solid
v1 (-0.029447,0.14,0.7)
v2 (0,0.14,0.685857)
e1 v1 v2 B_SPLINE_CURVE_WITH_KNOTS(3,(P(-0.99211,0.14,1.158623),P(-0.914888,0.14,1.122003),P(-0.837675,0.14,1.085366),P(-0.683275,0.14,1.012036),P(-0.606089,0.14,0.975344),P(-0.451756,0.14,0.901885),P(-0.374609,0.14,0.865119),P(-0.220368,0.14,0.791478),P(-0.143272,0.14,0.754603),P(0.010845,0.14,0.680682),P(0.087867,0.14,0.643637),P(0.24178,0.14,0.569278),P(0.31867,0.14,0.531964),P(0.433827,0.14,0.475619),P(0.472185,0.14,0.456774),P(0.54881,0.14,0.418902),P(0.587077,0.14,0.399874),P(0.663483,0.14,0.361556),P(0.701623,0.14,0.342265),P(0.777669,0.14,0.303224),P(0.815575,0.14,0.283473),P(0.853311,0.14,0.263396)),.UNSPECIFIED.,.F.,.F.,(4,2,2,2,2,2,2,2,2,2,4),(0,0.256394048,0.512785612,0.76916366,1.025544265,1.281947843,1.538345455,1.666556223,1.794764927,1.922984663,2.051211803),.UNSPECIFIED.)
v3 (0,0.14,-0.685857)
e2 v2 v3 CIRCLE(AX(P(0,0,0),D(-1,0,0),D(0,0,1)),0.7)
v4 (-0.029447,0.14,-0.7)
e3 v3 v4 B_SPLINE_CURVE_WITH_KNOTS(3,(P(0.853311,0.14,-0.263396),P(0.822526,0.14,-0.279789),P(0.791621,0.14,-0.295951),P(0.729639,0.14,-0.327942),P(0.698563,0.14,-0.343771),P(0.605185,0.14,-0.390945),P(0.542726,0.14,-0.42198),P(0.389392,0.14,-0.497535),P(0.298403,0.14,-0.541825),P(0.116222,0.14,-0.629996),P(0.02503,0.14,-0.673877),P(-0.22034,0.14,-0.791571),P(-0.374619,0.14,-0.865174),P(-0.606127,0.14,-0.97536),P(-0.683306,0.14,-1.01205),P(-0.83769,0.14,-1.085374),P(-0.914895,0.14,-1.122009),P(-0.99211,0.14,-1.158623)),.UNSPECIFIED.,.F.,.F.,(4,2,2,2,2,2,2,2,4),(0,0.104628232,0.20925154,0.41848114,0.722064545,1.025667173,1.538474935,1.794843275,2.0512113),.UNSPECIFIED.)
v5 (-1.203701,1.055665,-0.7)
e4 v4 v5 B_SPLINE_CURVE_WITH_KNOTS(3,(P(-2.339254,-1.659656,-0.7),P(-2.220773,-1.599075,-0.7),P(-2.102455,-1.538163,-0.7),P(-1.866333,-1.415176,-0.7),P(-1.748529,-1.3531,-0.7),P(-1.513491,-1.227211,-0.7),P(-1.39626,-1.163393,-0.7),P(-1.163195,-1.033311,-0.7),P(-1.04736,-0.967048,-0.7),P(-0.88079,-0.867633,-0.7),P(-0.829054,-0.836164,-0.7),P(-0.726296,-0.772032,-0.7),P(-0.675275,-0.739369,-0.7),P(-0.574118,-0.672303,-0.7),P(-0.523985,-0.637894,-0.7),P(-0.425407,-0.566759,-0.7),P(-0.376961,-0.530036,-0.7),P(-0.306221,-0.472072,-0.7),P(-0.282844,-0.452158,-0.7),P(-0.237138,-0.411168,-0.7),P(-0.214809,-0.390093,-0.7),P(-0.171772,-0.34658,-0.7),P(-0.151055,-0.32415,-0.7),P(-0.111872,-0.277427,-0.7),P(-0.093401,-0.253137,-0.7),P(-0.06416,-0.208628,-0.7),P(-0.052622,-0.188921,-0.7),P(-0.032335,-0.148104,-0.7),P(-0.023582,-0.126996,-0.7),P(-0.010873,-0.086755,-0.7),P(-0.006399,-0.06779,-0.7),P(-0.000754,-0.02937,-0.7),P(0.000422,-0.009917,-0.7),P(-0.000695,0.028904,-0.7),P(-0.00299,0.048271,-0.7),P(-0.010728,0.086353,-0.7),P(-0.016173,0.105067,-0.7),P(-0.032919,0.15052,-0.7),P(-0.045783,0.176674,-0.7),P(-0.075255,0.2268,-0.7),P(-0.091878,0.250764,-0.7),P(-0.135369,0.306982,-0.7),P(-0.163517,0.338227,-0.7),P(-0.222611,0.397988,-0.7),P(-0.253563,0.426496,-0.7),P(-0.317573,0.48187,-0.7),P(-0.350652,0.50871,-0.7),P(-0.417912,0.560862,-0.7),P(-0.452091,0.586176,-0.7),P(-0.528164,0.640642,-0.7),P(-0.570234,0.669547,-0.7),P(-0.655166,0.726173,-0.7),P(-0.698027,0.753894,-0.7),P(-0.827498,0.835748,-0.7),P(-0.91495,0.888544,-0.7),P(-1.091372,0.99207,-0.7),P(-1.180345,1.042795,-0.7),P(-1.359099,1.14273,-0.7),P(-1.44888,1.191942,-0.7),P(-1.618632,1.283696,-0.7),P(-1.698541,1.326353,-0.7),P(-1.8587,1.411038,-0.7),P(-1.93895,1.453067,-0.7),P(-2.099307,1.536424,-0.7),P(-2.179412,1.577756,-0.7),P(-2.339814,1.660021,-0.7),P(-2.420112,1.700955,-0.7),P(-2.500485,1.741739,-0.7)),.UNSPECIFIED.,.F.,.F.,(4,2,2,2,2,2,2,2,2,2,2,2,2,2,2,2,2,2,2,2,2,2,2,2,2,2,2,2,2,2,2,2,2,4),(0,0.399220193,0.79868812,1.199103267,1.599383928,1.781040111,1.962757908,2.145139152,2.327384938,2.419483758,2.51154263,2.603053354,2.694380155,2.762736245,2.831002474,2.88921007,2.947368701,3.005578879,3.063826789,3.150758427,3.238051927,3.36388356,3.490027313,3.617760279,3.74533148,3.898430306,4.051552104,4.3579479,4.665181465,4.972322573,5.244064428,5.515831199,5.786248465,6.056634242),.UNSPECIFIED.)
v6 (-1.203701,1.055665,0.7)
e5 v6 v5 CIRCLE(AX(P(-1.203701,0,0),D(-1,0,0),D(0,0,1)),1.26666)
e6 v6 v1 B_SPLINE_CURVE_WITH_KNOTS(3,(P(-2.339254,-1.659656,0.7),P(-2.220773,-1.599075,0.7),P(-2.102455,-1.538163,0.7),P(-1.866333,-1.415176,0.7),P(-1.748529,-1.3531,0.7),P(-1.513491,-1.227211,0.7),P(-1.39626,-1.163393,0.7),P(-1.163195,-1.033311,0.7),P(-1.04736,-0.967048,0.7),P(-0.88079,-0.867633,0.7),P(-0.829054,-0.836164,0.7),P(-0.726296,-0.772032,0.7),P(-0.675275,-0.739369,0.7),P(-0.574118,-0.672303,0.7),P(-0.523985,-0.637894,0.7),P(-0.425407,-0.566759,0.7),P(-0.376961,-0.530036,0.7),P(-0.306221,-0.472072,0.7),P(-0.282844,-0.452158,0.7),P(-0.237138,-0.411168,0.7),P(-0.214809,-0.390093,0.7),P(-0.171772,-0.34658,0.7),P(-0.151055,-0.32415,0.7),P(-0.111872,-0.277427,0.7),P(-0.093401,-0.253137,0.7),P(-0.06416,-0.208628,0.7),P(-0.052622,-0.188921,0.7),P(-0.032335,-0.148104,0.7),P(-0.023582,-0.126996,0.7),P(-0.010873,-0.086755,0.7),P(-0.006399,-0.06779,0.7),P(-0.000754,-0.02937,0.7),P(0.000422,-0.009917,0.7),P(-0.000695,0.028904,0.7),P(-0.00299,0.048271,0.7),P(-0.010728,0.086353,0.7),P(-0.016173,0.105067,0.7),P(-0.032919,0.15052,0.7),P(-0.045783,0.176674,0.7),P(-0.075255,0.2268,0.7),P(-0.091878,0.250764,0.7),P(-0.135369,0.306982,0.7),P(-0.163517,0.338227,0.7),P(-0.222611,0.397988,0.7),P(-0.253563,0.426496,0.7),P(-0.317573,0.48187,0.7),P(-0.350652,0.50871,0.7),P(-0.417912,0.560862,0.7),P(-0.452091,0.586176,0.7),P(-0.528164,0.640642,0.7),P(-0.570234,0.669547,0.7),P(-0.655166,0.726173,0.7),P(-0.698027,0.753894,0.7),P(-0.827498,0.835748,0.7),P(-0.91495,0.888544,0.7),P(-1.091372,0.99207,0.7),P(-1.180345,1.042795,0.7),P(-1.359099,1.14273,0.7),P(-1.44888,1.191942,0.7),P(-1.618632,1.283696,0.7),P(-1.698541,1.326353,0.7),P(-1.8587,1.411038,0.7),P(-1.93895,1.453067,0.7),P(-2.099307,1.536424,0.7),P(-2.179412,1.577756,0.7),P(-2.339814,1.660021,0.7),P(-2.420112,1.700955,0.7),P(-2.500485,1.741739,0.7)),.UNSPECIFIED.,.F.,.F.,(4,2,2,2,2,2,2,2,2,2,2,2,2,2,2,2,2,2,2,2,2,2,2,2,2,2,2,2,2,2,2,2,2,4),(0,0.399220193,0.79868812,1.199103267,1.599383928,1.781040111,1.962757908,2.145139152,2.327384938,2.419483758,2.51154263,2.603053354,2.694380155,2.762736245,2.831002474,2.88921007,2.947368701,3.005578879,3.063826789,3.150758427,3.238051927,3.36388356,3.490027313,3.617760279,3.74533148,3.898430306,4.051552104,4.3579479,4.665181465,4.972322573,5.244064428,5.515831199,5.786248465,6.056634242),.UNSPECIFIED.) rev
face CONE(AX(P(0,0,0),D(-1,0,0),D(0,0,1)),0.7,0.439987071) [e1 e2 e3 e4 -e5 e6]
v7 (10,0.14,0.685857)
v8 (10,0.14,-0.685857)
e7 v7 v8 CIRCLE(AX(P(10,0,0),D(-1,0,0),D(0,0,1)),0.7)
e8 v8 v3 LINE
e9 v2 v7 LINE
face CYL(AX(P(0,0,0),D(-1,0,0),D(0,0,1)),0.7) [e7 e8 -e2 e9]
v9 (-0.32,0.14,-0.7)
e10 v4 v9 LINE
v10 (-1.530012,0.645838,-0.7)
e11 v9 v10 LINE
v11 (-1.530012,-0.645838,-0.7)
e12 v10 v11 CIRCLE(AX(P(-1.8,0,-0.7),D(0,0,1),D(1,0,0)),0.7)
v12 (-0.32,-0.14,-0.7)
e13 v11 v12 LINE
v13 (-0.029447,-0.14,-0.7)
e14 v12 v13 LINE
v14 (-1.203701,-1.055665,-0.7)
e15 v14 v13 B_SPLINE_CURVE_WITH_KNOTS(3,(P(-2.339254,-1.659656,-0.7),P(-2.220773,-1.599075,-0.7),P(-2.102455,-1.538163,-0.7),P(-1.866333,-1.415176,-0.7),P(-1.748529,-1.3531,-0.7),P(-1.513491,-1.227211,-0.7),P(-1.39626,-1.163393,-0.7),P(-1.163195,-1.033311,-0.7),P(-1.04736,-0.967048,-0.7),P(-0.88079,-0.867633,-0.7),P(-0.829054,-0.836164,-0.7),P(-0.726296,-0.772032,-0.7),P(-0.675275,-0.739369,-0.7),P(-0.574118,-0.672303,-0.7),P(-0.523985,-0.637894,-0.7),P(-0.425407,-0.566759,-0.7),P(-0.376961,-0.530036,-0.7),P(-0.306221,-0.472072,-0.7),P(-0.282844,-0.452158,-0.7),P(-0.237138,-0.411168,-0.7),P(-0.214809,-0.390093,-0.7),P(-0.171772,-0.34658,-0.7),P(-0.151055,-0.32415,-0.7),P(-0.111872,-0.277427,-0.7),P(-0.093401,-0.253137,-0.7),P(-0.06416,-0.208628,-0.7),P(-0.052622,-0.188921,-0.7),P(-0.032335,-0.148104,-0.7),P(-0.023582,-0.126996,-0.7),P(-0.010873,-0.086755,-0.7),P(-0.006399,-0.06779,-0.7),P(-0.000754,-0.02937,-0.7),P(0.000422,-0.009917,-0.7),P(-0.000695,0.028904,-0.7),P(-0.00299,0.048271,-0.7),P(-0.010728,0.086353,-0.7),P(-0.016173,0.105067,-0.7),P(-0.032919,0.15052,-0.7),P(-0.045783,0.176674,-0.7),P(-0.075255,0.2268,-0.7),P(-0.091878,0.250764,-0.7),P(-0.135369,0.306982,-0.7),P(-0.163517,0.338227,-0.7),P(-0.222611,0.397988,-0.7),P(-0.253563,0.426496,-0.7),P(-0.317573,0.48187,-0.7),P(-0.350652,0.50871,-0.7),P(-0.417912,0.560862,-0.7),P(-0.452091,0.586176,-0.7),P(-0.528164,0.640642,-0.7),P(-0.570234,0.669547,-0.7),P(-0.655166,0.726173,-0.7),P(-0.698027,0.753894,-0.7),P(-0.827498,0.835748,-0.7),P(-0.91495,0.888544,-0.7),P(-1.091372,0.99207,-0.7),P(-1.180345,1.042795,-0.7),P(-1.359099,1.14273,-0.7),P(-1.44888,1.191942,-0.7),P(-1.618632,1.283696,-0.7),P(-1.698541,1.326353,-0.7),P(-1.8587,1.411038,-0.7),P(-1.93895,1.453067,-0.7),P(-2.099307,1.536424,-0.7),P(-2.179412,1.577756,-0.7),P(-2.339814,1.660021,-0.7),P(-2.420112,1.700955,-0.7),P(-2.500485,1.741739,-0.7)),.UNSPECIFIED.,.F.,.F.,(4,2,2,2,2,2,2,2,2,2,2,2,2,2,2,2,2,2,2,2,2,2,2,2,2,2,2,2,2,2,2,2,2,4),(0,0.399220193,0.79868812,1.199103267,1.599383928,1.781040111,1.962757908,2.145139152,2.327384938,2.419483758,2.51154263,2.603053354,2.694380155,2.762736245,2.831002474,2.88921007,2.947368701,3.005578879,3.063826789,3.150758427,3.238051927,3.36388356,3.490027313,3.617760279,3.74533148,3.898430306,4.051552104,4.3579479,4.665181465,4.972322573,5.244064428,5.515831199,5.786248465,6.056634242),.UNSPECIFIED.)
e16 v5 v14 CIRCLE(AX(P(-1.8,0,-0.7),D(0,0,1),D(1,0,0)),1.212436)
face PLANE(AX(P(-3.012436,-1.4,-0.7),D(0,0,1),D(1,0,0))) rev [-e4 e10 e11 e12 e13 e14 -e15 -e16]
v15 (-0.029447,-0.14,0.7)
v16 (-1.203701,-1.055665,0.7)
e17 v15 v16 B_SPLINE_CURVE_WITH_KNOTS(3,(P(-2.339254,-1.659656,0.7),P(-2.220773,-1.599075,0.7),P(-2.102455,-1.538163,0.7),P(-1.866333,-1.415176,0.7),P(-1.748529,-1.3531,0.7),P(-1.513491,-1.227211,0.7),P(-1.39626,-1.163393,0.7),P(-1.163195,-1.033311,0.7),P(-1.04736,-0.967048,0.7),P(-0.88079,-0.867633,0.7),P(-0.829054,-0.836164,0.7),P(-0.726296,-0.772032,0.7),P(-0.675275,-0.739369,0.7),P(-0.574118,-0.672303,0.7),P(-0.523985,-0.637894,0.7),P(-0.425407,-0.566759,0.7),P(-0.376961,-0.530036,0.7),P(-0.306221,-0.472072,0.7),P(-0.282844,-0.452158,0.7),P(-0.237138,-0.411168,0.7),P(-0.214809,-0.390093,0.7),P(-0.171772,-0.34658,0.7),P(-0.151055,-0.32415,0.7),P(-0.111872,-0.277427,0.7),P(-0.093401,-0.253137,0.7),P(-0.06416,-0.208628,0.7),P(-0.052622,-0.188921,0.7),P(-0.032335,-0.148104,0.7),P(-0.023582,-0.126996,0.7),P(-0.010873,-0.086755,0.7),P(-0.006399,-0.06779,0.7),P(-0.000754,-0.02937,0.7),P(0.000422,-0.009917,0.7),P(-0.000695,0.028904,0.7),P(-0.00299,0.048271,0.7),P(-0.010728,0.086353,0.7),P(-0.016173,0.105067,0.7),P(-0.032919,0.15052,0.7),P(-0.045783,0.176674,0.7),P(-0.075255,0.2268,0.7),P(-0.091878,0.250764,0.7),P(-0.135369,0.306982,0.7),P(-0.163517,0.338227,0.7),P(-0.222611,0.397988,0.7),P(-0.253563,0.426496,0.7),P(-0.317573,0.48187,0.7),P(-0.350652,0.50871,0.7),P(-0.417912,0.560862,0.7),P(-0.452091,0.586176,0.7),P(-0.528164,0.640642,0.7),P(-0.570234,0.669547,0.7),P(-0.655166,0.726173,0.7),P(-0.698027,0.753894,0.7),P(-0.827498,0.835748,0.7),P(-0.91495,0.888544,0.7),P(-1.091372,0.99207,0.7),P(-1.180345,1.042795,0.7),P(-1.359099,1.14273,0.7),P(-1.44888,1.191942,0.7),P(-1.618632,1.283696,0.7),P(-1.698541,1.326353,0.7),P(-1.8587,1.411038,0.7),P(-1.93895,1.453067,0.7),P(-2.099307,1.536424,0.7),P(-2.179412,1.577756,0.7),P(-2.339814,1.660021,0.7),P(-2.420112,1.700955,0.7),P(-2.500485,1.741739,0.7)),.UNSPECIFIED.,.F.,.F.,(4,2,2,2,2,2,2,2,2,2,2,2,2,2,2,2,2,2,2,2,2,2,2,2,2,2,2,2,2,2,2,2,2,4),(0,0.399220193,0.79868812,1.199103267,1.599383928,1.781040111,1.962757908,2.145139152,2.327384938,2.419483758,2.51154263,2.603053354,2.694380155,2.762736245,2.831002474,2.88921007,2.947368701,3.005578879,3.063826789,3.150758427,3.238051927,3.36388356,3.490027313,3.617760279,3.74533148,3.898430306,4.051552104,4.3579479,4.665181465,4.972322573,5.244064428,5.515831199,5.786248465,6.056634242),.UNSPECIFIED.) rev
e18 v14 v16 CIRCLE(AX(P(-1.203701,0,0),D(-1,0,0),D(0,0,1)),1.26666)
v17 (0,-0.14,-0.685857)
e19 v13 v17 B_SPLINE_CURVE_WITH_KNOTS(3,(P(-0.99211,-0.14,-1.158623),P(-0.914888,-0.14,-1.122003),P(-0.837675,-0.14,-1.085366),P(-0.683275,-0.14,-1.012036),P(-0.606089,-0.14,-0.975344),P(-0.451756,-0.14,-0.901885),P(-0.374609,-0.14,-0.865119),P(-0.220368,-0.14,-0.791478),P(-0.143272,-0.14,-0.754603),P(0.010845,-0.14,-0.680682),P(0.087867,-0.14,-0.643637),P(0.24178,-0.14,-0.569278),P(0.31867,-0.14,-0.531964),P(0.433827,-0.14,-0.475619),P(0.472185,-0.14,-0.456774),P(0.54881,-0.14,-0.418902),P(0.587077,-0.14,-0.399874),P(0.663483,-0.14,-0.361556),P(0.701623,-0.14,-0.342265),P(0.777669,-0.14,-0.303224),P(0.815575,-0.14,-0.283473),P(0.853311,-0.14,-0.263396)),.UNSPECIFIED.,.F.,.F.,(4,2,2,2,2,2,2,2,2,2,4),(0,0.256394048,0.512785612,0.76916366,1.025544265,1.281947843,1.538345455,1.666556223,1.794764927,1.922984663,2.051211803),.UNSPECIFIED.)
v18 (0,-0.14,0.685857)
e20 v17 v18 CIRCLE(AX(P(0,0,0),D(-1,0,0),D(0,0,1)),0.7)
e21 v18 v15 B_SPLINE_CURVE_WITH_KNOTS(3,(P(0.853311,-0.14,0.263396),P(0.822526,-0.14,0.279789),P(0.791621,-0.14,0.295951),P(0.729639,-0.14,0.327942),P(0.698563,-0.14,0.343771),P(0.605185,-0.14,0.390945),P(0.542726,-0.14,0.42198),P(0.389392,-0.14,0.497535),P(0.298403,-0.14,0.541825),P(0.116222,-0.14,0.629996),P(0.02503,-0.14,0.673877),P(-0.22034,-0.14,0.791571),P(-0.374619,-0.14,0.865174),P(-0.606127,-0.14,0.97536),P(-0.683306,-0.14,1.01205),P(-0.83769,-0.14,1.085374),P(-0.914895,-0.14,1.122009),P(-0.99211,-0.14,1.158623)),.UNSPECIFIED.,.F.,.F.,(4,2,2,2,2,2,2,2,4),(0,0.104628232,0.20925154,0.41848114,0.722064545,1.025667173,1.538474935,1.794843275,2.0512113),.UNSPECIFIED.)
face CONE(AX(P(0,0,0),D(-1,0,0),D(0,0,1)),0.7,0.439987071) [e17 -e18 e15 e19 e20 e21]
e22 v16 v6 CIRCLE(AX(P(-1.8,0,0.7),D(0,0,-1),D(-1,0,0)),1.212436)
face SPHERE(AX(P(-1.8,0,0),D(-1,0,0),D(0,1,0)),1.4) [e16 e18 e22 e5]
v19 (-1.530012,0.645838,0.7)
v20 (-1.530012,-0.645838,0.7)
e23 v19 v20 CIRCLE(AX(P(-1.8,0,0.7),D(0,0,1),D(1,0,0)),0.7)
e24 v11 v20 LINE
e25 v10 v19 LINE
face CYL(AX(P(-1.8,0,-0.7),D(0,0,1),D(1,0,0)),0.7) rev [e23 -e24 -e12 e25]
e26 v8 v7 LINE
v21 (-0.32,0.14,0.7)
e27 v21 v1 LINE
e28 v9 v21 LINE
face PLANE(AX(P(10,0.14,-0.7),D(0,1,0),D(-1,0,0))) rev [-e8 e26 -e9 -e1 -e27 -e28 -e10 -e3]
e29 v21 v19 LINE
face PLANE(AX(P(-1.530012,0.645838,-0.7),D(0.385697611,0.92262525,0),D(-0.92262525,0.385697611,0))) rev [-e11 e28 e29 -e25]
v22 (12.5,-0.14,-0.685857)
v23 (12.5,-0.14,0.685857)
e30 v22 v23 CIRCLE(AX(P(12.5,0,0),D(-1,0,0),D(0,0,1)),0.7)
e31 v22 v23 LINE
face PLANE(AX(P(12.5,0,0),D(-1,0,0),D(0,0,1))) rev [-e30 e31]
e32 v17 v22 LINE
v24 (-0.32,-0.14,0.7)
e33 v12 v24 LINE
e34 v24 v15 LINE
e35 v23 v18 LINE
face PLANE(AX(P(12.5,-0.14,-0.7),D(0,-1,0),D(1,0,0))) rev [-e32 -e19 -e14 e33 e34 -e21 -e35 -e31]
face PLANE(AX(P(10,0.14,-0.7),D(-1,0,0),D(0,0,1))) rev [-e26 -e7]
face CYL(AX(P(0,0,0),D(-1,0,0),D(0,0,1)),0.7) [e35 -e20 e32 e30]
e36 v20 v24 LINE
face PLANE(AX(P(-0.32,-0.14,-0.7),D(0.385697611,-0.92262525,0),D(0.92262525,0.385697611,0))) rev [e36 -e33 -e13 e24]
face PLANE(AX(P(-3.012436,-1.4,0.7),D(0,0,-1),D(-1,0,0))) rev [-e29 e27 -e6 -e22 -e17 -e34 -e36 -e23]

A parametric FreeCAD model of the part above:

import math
import FreeCAD as App
import Part
import Sketcher
from FreeCAD import Vector

doc = App.newDocument("Part")
body = doc.addObject("PartDesign::Body", "Body")

# Sketch on XY plane
sketch1 = body.newObject("Sketcher::SketchObject", "Sketch")
sketch1.AttachmentSupport = (doc.getObject("XY_Plane"), [""])
sketch1.MapMode = "FlatFace"
sketch1.addGeometry([
    Part.LineSegment(Vector(0, 0.7, 0), Vector(-1.203701, 1.26666, 0)),  # 0
    Part.ArcOfCircle(Part.Circle(Vector(-1.8, 0, 0), Vector(0, 0, 1), 1.4), math.radians(64.790598), math.radians(180)),  # 1
    Part.LineSegment(Vector(-3.2, 0, 0), Vector(12.5, 0, 0)),  # 2
    Part.LineSegment(Vector(12.5, 0, 0), Vector(12.5, 0.7, 0)),  # 3
    Part.LineSegment(Vector(12.5, 0.7, 0), Vector(0, 0.7, 0)),  # 4
], False)
sketch1.addConstraint([
    Sketcher.Constraint("Tangent", 0, 2, 1, 1),
    Sketcher.Constraint("Coincident", 1, 2, 2, 1),
    Sketcher.Constraint("Coincident", 2, 2, 3, 1),
    Sketcher.Constraint("Coincident", 3, 2, 4, 1),
    Sketcher.Constraint("Coincident", 4, 2, 0, 1),
    Sketcher.Constraint("Horizontal", 2),
    Sketcher.Constraint("Vertical", 3),
    Sketcher.Constraint("Horizontal", 4),
    Sketcher.Constraint("PointOnObject", 1, 3, -1),
    Sketcher.Constraint("PointOnObject", 1, 2, -1),
    Sketcher.Constraint("PointOnObject", 4, 2, -2),
    Sketcher.Constraint("Radius", 1, 1.4),
    Sketcher.Constraint("DistanceX", 2, 1, 2, 2, 15.7),
    Sketcher.Constraint("DistanceX", 4, 2, 4, 1, 12.5),
    Sketcher.Constraint("DistanceY", 3, 1, 3, 2, 0.7),
])
revolution = body.newObject("PartDesign::Revolution", "Revolution")
revolution.Profile = sketch1
revolution.ReferenceAxis = (sketch1, ["H_Axis"])
revolution.Angle = 360

# Sketch on XZ plane
sketch2 = body.newObject("Sketcher::SketchObject", "Sketch001")
sketch2.AttachmentSupport = (doc.getObject("XZ_Plane"), [""])
sketch2.MapMode = "FlatFace"
sketch2.addGeometry([
    Part.LineSegment(Vector(-3.012436, -0.7, 0), Vector(0, -0.7, 0)),  # 0
    Part.LineSegment(Vector(0, -0.7, 0), Vector(-1.203701, -1.26666, 0)),  # 1
    Part.ArcOfCircle(Part.Circle(Vector(-1.8, 0, 0), Vector(0, 0, 1), 1.4), math.radians(-150), math.radians(-64.790598)),  # 2
    Part.LineSegment(Vector(0, 0.7, 0), Vector(-3.012436, 0.7, 0)),  # 3
    Part.ArcOfCircle(Part.Circle(Vector(-1.8, 0, 0), Vector(0, 0, 1), 1.4), math.radians(64.790598), math.radians(150)),  # 4
    Part.LineSegment(Vector(-1.203701, 1.26666, 0), Vector(0, 0.7, 0)),  # 5
], False)
sketch2.addConstraint([
    Sketcher.Constraint("Coincident", 0, 2, 1, 1),
    Sketcher.Constraint("Tangent", 1, 2, 2, 2),
    Sketcher.Constraint("Coincident", 2, 1, 0, 1),
    Sketcher.Constraint("Coincident", 3, 2, 4, 2),
    Sketcher.Constraint("Tangent", 4, 1, 5, 1),
    Sketcher.Constraint("Coincident", 5, 2, 3, 1),
    Sketcher.Constraint("Horizontal", 0),
    Sketcher.Constraint("Horizontal", 3),
    Sketcher.Constraint("Coincident", 4, 3, 2, 3),
    Sketcher.Constraint("Equal", 2, 4),
    Sketcher.Constraint("Symmetric", 0, 2, 5, 2, -1, 1),
    Sketcher.Constraint("Symmetric", 1, 2, 4, 1, -1),
    Sketcher.Constraint("Radius", 2, 1.4),
    Sketcher.Constraint("DistanceX", 2, 3, -1, 1, 1.8),
    Sketcher.Constraint("DistanceY", 0, 2, -1, 1, 0.7),
])
pocket1 = body.newObject("PartDesign::Pocket", "Pocket")
pocket1.Profile = sketch2
pocket1.Type = "ThroughAll"
pocket1.Midplane = True

# Sketch on XY plane
sketch3 = body.newObject("Sketcher::SketchObject", "Sketch002")
sketch3.AttachmentSupport = (doc.getObject("XY_Plane"), [""])
sketch3.MapMode = "FlatFace"
sketch3.addGeometry([
    Part.LineSegment(Vector(-0.32, 0.14, 0), Vector(-1.530012, 0.645838, 0)),  # 0
    Part.ArcOfCircle(Part.Circle(Vector(-1.8, 0, 0), Vector(0, 0, 1), 0.7), math.radians(67.312944), math.radians(292.687056)),  # 1
    Part.LineSegment(Vector(-1.530012, -0.645838, 0), Vector(-0.32, -0.14, 0)),  # 2
    Part.LineSegment(Vector(-0.32, -0.14, 0), Vector(12.5, -0.14, 0)),  # 3
    Part.LineSegment(Vector(12.5, -0.14, 0), Vector(12.5, 0.7, 0)),  # 4
    Part.LineSegment(Vector(12.5, 0.7, 0), Vector(10, 0.7, 0)),  # 5
    Part.LineSegment(Vector(10, 0.7, 0), Vector(10, 0.14, 0)),  # 6
    Part.LineSegment(Vector(10, 0.14, 0), Vector(-0.32, 0.14, 0)),  # 7
], False)
sketch3.addConstraint([
    Sketcher.Constraint("Tangent", 0, 2, 1, 1),
    Sketcher.Constraint("Tangent", 1, 2, 2, 1),
    Sketcher.Constraint("Coincident", 2, 2, 3, 1),
    Sketcher.Constraint("Coincident", 3, 2, 4, 1),
    Sketcher.Constraint("Coincident", 4, 2, 5, 1),
    Sketcher.Constraint("Coincident", 5, 2, 6, 1),
    Sketcher.Constraint("Coincident", 6, 2, 7, 1),
    Sketcher.Constraint("Coincident", 7, 2, 0, 1),
    Sketcher.Constraint("Horizontal", 3),
    Sketcher.Constraint("Vertical", 4),
    Sketcher.Constraint("Horizontal", 5),
    Sketcher.Constraint("Vertical", 6),
    Sketcher.Constraint("Horizontal", 7),
    Sketcher.Constraint("Symmetric", 0, 2, 1, 2, -1),
    Sketcher.Constraint("Vertical", 2, 2, 7, 2),
    Sketcher.Constraint("Radius", 1, 0.7),
    Sketcher.Constraint("DistanceX", 5, 2, 5, 1, 2.5),
    Sketcher.Constraint("DistanceX", -1, 1, 5, 2, 10.0),
    Sketcher.Constraint("DistanceX", 3, 1, 3, 2, 12.82),
    Sketcher.Constraint("DistanceY", 4, 1, 4, 2, 0.84),
    Sketcher.Constraint("DistanceY", 6, 2, 6, 1, 0.56),
    Sketcher.Constraint("DistanceX", 1, 3, -1, 1, 1.8),
])
pocket2 = body.newObject("PartDesign::Pocket", "Pocket001")
pocket2.Profile = sketch3
pocket2.Type = "ThroughAll"
pocket2.Midplane = True

doc.recompute()
